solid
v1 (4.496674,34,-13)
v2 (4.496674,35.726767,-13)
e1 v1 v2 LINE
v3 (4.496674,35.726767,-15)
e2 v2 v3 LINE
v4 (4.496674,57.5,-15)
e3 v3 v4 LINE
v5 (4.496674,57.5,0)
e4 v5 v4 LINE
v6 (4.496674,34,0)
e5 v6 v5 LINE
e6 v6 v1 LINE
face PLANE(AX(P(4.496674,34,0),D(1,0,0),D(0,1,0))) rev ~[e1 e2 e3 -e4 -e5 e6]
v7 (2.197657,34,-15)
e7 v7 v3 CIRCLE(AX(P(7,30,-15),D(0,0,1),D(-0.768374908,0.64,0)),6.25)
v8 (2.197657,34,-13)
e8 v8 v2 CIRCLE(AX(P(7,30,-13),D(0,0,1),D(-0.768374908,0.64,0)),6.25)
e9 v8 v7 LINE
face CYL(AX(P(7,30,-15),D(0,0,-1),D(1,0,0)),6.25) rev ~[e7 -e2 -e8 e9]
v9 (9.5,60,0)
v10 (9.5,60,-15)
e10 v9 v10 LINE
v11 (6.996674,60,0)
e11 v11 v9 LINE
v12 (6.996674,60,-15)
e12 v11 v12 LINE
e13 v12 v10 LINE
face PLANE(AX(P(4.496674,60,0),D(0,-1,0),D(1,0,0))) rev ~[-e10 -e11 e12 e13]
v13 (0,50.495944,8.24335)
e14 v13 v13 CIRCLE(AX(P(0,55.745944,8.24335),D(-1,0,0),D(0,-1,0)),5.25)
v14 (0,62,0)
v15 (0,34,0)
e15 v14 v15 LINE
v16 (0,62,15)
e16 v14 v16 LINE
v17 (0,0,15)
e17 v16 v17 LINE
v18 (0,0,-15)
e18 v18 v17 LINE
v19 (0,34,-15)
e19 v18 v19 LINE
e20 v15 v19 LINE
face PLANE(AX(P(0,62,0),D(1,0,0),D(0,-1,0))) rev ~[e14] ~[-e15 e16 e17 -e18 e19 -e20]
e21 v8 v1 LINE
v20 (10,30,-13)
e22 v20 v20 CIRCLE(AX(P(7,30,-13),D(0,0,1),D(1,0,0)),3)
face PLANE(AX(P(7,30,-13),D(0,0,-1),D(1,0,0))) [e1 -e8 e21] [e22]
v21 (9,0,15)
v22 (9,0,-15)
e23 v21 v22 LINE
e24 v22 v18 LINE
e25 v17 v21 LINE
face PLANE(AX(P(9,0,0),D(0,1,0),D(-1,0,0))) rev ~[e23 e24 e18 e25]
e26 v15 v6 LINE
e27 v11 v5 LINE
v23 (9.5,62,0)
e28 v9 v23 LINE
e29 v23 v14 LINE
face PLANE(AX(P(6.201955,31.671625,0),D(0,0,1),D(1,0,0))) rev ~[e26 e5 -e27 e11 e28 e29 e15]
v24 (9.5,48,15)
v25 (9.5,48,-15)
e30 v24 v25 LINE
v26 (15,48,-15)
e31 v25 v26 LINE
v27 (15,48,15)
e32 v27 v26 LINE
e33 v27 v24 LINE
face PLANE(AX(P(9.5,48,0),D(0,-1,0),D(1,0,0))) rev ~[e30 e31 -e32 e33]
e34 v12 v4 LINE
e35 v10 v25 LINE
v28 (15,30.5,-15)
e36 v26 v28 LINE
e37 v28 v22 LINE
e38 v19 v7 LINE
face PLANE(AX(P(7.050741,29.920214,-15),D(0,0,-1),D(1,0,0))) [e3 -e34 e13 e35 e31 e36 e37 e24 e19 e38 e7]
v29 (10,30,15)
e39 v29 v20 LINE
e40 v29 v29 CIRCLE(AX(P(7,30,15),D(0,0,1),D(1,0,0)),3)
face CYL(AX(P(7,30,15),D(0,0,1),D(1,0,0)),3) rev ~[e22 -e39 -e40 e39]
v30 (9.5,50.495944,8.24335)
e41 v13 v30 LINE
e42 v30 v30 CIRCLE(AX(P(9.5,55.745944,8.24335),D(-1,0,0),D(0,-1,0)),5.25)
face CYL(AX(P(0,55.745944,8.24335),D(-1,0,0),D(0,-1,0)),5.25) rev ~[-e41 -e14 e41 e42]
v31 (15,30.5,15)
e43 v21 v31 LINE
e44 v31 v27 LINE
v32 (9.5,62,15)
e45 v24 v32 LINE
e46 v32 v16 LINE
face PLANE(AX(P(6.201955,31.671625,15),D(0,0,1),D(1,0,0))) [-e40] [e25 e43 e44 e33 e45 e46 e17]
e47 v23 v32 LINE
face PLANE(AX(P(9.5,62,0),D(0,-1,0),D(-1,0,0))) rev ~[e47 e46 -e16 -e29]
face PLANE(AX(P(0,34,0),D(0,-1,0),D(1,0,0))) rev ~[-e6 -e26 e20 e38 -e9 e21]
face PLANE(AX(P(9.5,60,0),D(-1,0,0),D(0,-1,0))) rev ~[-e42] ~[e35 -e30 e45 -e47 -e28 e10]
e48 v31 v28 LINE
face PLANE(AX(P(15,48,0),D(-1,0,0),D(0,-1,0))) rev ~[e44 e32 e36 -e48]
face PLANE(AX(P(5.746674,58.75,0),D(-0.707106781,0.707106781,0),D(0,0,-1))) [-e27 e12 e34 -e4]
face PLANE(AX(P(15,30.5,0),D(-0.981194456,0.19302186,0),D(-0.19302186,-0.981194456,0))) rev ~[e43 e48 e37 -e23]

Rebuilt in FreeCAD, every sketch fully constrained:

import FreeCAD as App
import Part
import Sketcher
from FreeCAD import Vector


def edges_at(feature, points):
    """Names of the edges that pass closest to the given points."""
    edges = feature.Shape.Edges
    near = lambda p: min(range(len(edges)), key=lambda i: edges[i].distToShape(Part.Vertex(*p))[0])
    return sorted({f"Edge{near(p) + 1}" for p in points})

doc = App.newDocument("Part")
body = doc.addObject("PartDesign::Body", "Body")

# Sketch on XY plane
sketch1 = doc.addObject("Sketcher::SketchObject", "Sketch")
body.addObject(sketch1)
sketch1.AttachmentSupport = (doc.XY_Plane, [""])
sketch1.MapMode = "FlatFace"
sketch1.addGeometry(Part.LineSegment(Vector(0, 62, 0), Vector(0, 0, 0)), False)
sketch1.addGeometry(Part.LineSegment(Vector(0, 0, 0), Vector(9, 0, 0)), False)
sketch1.addGeometry(Part.LineSegment(Vector(9, 0, 0), Vector(15, 30, 0)), False)
sketch1.addGeometry(Part.LineSegment(Vector(15, 30, 0), Vector(15, 48, 0)), False)
sketch1.addGeometry(Part.LineSegment(Vector(15, 48, 0), Vector(10, 48, 0)), False)
sketch1.addGeometry(Part.LineSegment(Vector(10, 48, 0), Vector(10, 62, 0)), False)
sketch1.addGeometry(Part.LineSegment(Vector(10, 62, 0), Vector(0, 62, 0)), False)
sketch1.addConstraint(Sketcher.Constraint("Coincident", 0, 2, 1, 1))
sketch1.addConstraint(Sketcher.Constraint("Coincident", 1, 2, 2, 1))
sketch1.addConstraint(Sketcher.Constraint("Coincident", 2, 2, 3, 1))
sketch1.addConstraint(Sketcher.Constraint("Coincident", 3, 2, 4, 1))
sketch1.addConstraint(Sketcher.Constraint("Coincident", 4, 2, 5, 1))
sketch1.addConstraint(Sketcher.Constraint("Coincident", 5, 2, 6, 1))
sketch1.addConstraint(Sketcher.Constraint("Coincident", 6, 2, 0, 1))
sketch1.addConstraint(Sketcher.Constraint("Vertical", 0))
sketch1.addConstraint(Sketcher.Constraint("Horizontal", 1))
sketch1.addConstraint(Sketcher.Constraint("Vertical", 3))
sketch1.addConstraint(Sketcher.Constraint("Horizontal", 4))
sketch1.addConstraint(Sketcher.Constraint("Vertical", 5))
sketch1.addConstraint(Sketcher.Constraint("Horizontal", 6))
sketch1.addConstraint(Sketcher.Constraint("Coincident", 0, 2, -1, 1))
sketch1.addConstraint(Sketcher.Constraint("DistanceX", 1, 1, 1, 2, 9.0))
sketch1.addConstraint(Sketcher.Constraint("DistanceY", 0, 2, 0, 1, 62.0))
sketch1.addConstraint(Sketcher.Constraint("DistanceY", 5, 1, 5, 2, 14.0))
sketch1.addConstraint(Sketcher.Constraint("DistanceX", 4, 2, 4, 1, 5.5))
sketch1.addConstraint(Sketcher.Constraint("DistanceX", 6, 2, 6, 1, 9.5))
sketch1.addConstraint(Sketcher.Constraint("DistanceY", 3, 1, 3, 2, 17.5))
pad1 = doc.addObject("PartDesign::Pad", "Pad")
body.addObject(pad1)
pad1.Profile = sketch1
pad1.Length = 15

# Sketch on XY plane
sketch2 = doc.addObject("Sketcher::SketchObject", "Sketch001")
body.addObject(sketch2)
sketch2.AttachmentSupport = (doc.XY_Plane, [""])
sketch2.MapMode = "FlatFace"
sketch2.addGeometry(Part.LineSegment(Vector(4.5, 60, 0), Vector(9.5, 60, 0)), False)
sketch2.addGeometry(Part.LineSegment(Vector(9.5, 60, 0), Vector(9.5, 48, 0)), False)
sketch2.addGeometry(Part.LineSegment(Vector(9.5, 48, 0), Vector(15, 48, 0)), False)
sketch2.addGeometry(Part.LineSegment(Vector(15, 48, 0), Vector(15, 30.5, 0)), False)
sketch2.addGeometry(Part.LineSegment(Vector(15, 30.5, 0), Vector(9, 0, 0)), False)
sketch2.addGeometry(Part.LineSegment(Vector(9, 0, 0), Vector(0, 0, 0)), False)
sketch2.addGeometry(Part.LineSegment(Vector(0, 0, 0), Vector(0, 34, 0)), False)
sketch2.addGeometry(Part.LineSegment(Vector(0, 34, 0), Vector(4.5, 34, 0)), False)
sketch2.addGeometry(Part.LineSegment(Vector(4.5, 34, 0), Vector(4.5, 60, 0)), False)
sketch2.addConstraint(Sketcher.Constraint("Coincident", 0, 2, 1, 1))
sketch2.addConstraint(Sketcher.Constraint("Coincident", 1, 2, 2, 1))
sketch2.addConstraint(Sketcher.Constraint("Coincident", 2, 2, 3, 1))
sketch2.addConstraint(Sketcher.Constraint("Coincident", 3, 2, 4, 1))
sketch2.addConstraint(Sketcher.Constraint("Coincident", 4, 2, 5, 1))
sketch2.addConstraint(Sketcher.Constraint("Coincident", 5, 2, 6, 1))
sketch2.addConstraint(Sketcher.Constraint("Coincident", 6, 2, 7, 1))
sketch2.addConstraint(Sketcher.Constraint("Coincident", 7, 2, 8, 1))
sketch2.addConstraint(Sketcher.Constraint("Coincident", 8, 2, 0, 1))
sketch2.addConstraint(Sketcher.Constraint("Horizontal", 0))
sketch2.addConstraint(Sketcher.Constraint("Vertical", 1))
sketch2.addConstraint(Sketcher.Constraint("Horizontal", 2))
sketch2.addConstraint(Sketcher.Constraint("Vertical", 3))
sketch2.addConstraint(Sketcher.Constraint("Horizontal", 5))
sketch2.addConstraint(Sketcher.Constraint("Vertical", 6))
sketch2.addConstraint(Sketcher.Constraint("Horizontal", 7))
sketch2.addConstraint(Sketcher.Constraint("Vertical", 8))
sketch2.addConstraint(Sketcher.Constraint("Coincident", 5, 2, -1, 1))
sketch2.addConstraint(Sketcher.Constraint("DistanceX", 5, 2, 5, 1, 9.0))
sketch2.addConstraint(Sketcher.Constraint("DistanceY", 1, 2, 1, 1, 12.0))
sketch2.addConstraint(Sketcher.Constraint("DistanceY", 6, 1, 6, 2, 34.0))
sketch2.addConstraint(Sketcher.Constraint("DistanceY", 8, 1, 8, 2, 26.0))
sketch2.addConstraint(Sketcher.Constraint("DistanceX", 2, 1, 2, 2, 5.5))
sketch2.addConstraint(Sketcher.Constraint("DistanceY", 3, 2, 3, 1, 17.5))
sketch2.addConstraint(Sketcher.Constraint("DistanceX", -1, 1, 2, 2, 15.0))
sketch2.addConstraint(Sketcher.Constraint("DistanceX", 0, 1, 0, 2, 5.003326))
pad2 = doc.addObject("PartDesign::Pad", "Pad001")
body.addObject(pad2)
pad2.Profile = sketch2
pad2.Length = 15
pad2.Reversed = True
doc.recompute()

chamfer = doc.addObject("PartDesign::Chamfer", "Chamfer")
body.addObject(chamfer)
chamfer.Base = (pad2, edges_at(pad2, [(4.497, 60, -7.5)]))
chamfer.Size = 2.5

# Sketch on YZ plane
sketch3 = doc.addObject("Sketcher::SketchObject", "Sketch002")
body.addObject(sketch3)
sketch3.AttachmentSupport = (doc.YZ_Plane, [""])
sketch3.MapMode = "FlatFace"
sketch3.addGeometry(Part.Circle(Vector(56, 8, 0), Vector(0, 0, 1), 5), False)
sketch3.addConstraint(Sketcher.Constraint("Diameter", 0, 10.5))
sketch3.addConstraint(Sketcher.Constraint("DistanceY", -1, 1, 0, 3, 8.24335))
sketch3.addConstraint(Sketcher.Constraint("DistanceX", -1, 1, 0, 3, 55.745944))
pocket1 = doc.addObject("PartDesign::Pocket", "Pocket")
body.addObject(pocket1)
pocket1.Profile = sketch3
pocket1.Length = 15
pocket1.Reversed = True

# Sketch on XY plane
sketch4 = doc.addObject("Sketcher::SketchObject", "Sketch003")
body.addObject(sketch4)
sketch4.AttachmentSupport = (doc.XY_Plane, [""])
sketch4.MapMode = "FlatFace"
sketch4.AttachmentOffset = App.Placement(Vector(0, 0, 15), App.Rotation())
sketch4.addGeometry(Part.Circle(Vector(7, 30, 0), Vector(0, 0, 1), 3), False)
sketch4.addConstraint(Sketcher.Constraint("Diameter", 0, 6.0))
sketch4.addConstraint(Sketcher.Constraint("DistanceX", -1, 1, 0, 3, 7.0))
sketch4.addConstraint(Sketcher.Constraint("DistanceY", -1, 1, 0, 3, 30.0))
pocket2 = doc.addObject("PartDesign::Pocket", "Pocket001")
body.addObject(pocket2)
pocket2.Profile = sketch4
pocket2.Length = 35

# Sketch on XY plane
sketch5 = doc.addObject("Sketcher::SketchObject", "Sketch004")
body.addObject(sketch5)
sketch5.AttachmentSupport = (doc.XY_Plane, [""])
sketch5.MapMode = "FlatFace"
sketch5.AttachmentOffset = App.Placement(Vector(0, 0, -15), App.Rotation())
sketch5.addGeometry(Part.Circle(Vector(7, 30, 0), Vector(0, 0, 1), 6), False)
sketch5.addConstraint(Sketcher.Constraint("Diameter", 0, 12.5))
sketch5.addConstraint(Sketcher.Constraint("DistanceX", -1, 1, 0, 3, 7.0))
sketch5.addConstraint(Sketcher.Constraint("DistanceY", -1, 1, 0, 3, 30.0))
pocket3 = doc.addObject("PartDesign::Pocket", "Pocket002")
body.addObject(pocket3)
pocket3.Profile = sketch5
pocket3.Length = 2
pocket3.Reversed = True

doc.recompute()
